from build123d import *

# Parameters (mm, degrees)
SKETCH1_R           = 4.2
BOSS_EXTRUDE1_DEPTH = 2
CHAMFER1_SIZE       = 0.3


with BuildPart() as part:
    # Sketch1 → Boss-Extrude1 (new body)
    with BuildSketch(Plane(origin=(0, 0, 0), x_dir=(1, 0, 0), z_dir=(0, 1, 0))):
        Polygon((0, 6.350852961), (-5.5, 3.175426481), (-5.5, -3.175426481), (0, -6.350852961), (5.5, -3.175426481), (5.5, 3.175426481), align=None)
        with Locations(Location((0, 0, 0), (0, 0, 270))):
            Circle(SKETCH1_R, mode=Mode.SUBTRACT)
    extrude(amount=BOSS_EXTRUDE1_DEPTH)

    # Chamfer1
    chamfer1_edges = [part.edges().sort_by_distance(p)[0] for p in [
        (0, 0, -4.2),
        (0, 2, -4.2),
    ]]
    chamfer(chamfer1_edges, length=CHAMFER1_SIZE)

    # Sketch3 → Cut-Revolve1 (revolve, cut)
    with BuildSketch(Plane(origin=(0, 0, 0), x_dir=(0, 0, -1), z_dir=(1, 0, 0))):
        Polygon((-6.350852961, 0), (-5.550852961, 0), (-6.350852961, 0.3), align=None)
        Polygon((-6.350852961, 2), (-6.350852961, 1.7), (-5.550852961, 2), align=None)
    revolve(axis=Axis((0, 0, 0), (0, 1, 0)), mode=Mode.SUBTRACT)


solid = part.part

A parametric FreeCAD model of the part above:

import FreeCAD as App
import Part
import Sketcher
Q = App.Units.Quantity


def edges_at(feature, points):
    """Names of the edges that pass closest to the given points."""
    edges = feature.Shape.Edges
    near = lambda p: min(range(len(edges)), key=lambda i: edges[i].distToShape(Part.Vertex(*p))[0])
    return sorted({f"Edge{near(p) + 1}" for p in points})


def add_polygon(sketch, points):
    """Adds a closed chain of lines whose ends are joined by coincident constraints."""
    first, n = sketch.GeometryCount, len(points)
    for a, b in zip(points, points[1:] + points[:1]):
        sketch.addGeometry(Part.LineSegment(App.Vector(*a, 0), App.Vector(*b, 0)), False)
    for i in range(n):
        sketch.addConstraint(Sketcher.Constraint("Coincident", first + i, 2, first + (i + 1) % n, 1))

doc = App.newDocument("Part")
body = doc.addObject("PartDesign::Body", "Body")

sketch1 = body.newObject("Sketcher::SketchObject", "Sketch")
sketch1.AttachmentSupport = (doc.getObject("XZ_Plane"), [""])
sketch1.MapMode = "FlatFace"
add_polygon(sketch1, [(0, -6.4), (-5.5, -3.2), (-5.5, 3.2), (0, 6.4), (5.5, 3.2), (5.5, -3.2)])
sketch1.addGeometry(Part.Circle(App.Vector(0, 0, 0), App.Vector(0, 0, 1), 4.2), False)
sketch1.addConstraint(Sketcher.Constraint("Vertical", 1))
sketch1.addConstraint(Sketcher.Constraint("Vertical", 4))
sketch1.addConstraint(Sketcher.Constraint("Coincident", 6, 3, -1, 1))
sketch1.addConstraint(Sketcher.Constraint("Symmetric", 0, 2, 3, 2, -1, 1))
sketch1.addConstraint(Sketcher.Constraint("Symmetric", 2, 2, 5, 2, -1, 1))
sketch1.addConstraint(Sketcher.Constraint("PointOnObject", 2, 2, -2))
sketch1.addConstraint(Sketcher.Constraint("Parallel", 2, 5))
sketch1.addConstraint(Sketcher.Constraint("Horizontal", 1, 2, 3, 2))
sketch1.addConstraint(Sketcher.Constraint("Diameter", 6, Q("8.4 mm")))
sketch1.addConstraint(Sketcher.Constraint("Angle", 0, Q("150 deg")))
sketch1.addConstraint(Sketcher.Constraint("DistanceX", 1, 2, 3, 2, Q("11 mm")))
sketch1.addConstraint(Sketcher.Constraint("DistanceY", 1, 1, 1, 2, Q("6.350853 mm")))
pad1 = body.newObject("PartDesign::Pad", "Pad")
pad1.Profile = sketch1
pad1.Length = 2
pad1.Reversed = True
doc.recompute()

chamfer = body.newObject("PartDesign::Chamfer", "Chamfer")
chamfer.Base = (pad1, edges_at(pad1, [(0, 0, -4.2), (0, 2, -4.2)]))
chamfer.Size = 0.3

sketch2 = body.newObject("Sketcher::SketchObject", "Sketch001")
sketch2.AttachmentSupport = (doc.getObject("YZ_Plane"), [""])
sketch2.MapMode = "FlatFace"
add_polygon(sketch2, [(0, 6.35), (0, 5.55), (0.3, 6.35)])
add_polygon(sketch2, [(2, 6.35), (1.7, 6.35), (2, 5.55)])
sketch2.addConstraint(Sketcher.Constraint("Vertical", 0))
sketch2.addConstraint(Sketcher.Constraint("Horizontal", 2))
sketch2.addConstraint(Sketcher.Constraint("Horizontal", 3))
sketch2.addConstraint(Sketcher.Constraint("Vertical", 5))
sketch2.addConstraint(Sketcher.Constraint("PointOnObject", 0, 2, -2))
sketch2.addConstraint(Sketcher.Constraint("Horizontal", 2, 2, 3, 2))
sketch2.addConstraint(Sketcher.Constraint("Horizontal", 0, 2, 4, 2))
sketch2.addConstraint(Sketcher.Constraint("Equal", 2, 3))
sketch2.addConstraint(Sketcher.Constraint("DistanceX", 2, 2, 2, 1, Q("0.3 mm")))
sketch2.addConstraint(Sketcher.Constraint("DistanceY", 0, 2, 0, 1, Q("0.8 mm")))
sketch2.addConstraint(Sketcher.Constraint("DistanceX", -1, 1, 4, 2, Q("2 mm")))
sketch2.addConstraint(Sketcher.Constraint("DistanceY", -1, 1, 0, 2, Q("5.550853 mm")))
groove = body.newObject("PartDesign::Groove", "Groove")
groove.Profile = sketch2
groove.ReferenceAxis = (sketch2, ["H_Axis"])
groove.Angle = 360

doc.recompute()
